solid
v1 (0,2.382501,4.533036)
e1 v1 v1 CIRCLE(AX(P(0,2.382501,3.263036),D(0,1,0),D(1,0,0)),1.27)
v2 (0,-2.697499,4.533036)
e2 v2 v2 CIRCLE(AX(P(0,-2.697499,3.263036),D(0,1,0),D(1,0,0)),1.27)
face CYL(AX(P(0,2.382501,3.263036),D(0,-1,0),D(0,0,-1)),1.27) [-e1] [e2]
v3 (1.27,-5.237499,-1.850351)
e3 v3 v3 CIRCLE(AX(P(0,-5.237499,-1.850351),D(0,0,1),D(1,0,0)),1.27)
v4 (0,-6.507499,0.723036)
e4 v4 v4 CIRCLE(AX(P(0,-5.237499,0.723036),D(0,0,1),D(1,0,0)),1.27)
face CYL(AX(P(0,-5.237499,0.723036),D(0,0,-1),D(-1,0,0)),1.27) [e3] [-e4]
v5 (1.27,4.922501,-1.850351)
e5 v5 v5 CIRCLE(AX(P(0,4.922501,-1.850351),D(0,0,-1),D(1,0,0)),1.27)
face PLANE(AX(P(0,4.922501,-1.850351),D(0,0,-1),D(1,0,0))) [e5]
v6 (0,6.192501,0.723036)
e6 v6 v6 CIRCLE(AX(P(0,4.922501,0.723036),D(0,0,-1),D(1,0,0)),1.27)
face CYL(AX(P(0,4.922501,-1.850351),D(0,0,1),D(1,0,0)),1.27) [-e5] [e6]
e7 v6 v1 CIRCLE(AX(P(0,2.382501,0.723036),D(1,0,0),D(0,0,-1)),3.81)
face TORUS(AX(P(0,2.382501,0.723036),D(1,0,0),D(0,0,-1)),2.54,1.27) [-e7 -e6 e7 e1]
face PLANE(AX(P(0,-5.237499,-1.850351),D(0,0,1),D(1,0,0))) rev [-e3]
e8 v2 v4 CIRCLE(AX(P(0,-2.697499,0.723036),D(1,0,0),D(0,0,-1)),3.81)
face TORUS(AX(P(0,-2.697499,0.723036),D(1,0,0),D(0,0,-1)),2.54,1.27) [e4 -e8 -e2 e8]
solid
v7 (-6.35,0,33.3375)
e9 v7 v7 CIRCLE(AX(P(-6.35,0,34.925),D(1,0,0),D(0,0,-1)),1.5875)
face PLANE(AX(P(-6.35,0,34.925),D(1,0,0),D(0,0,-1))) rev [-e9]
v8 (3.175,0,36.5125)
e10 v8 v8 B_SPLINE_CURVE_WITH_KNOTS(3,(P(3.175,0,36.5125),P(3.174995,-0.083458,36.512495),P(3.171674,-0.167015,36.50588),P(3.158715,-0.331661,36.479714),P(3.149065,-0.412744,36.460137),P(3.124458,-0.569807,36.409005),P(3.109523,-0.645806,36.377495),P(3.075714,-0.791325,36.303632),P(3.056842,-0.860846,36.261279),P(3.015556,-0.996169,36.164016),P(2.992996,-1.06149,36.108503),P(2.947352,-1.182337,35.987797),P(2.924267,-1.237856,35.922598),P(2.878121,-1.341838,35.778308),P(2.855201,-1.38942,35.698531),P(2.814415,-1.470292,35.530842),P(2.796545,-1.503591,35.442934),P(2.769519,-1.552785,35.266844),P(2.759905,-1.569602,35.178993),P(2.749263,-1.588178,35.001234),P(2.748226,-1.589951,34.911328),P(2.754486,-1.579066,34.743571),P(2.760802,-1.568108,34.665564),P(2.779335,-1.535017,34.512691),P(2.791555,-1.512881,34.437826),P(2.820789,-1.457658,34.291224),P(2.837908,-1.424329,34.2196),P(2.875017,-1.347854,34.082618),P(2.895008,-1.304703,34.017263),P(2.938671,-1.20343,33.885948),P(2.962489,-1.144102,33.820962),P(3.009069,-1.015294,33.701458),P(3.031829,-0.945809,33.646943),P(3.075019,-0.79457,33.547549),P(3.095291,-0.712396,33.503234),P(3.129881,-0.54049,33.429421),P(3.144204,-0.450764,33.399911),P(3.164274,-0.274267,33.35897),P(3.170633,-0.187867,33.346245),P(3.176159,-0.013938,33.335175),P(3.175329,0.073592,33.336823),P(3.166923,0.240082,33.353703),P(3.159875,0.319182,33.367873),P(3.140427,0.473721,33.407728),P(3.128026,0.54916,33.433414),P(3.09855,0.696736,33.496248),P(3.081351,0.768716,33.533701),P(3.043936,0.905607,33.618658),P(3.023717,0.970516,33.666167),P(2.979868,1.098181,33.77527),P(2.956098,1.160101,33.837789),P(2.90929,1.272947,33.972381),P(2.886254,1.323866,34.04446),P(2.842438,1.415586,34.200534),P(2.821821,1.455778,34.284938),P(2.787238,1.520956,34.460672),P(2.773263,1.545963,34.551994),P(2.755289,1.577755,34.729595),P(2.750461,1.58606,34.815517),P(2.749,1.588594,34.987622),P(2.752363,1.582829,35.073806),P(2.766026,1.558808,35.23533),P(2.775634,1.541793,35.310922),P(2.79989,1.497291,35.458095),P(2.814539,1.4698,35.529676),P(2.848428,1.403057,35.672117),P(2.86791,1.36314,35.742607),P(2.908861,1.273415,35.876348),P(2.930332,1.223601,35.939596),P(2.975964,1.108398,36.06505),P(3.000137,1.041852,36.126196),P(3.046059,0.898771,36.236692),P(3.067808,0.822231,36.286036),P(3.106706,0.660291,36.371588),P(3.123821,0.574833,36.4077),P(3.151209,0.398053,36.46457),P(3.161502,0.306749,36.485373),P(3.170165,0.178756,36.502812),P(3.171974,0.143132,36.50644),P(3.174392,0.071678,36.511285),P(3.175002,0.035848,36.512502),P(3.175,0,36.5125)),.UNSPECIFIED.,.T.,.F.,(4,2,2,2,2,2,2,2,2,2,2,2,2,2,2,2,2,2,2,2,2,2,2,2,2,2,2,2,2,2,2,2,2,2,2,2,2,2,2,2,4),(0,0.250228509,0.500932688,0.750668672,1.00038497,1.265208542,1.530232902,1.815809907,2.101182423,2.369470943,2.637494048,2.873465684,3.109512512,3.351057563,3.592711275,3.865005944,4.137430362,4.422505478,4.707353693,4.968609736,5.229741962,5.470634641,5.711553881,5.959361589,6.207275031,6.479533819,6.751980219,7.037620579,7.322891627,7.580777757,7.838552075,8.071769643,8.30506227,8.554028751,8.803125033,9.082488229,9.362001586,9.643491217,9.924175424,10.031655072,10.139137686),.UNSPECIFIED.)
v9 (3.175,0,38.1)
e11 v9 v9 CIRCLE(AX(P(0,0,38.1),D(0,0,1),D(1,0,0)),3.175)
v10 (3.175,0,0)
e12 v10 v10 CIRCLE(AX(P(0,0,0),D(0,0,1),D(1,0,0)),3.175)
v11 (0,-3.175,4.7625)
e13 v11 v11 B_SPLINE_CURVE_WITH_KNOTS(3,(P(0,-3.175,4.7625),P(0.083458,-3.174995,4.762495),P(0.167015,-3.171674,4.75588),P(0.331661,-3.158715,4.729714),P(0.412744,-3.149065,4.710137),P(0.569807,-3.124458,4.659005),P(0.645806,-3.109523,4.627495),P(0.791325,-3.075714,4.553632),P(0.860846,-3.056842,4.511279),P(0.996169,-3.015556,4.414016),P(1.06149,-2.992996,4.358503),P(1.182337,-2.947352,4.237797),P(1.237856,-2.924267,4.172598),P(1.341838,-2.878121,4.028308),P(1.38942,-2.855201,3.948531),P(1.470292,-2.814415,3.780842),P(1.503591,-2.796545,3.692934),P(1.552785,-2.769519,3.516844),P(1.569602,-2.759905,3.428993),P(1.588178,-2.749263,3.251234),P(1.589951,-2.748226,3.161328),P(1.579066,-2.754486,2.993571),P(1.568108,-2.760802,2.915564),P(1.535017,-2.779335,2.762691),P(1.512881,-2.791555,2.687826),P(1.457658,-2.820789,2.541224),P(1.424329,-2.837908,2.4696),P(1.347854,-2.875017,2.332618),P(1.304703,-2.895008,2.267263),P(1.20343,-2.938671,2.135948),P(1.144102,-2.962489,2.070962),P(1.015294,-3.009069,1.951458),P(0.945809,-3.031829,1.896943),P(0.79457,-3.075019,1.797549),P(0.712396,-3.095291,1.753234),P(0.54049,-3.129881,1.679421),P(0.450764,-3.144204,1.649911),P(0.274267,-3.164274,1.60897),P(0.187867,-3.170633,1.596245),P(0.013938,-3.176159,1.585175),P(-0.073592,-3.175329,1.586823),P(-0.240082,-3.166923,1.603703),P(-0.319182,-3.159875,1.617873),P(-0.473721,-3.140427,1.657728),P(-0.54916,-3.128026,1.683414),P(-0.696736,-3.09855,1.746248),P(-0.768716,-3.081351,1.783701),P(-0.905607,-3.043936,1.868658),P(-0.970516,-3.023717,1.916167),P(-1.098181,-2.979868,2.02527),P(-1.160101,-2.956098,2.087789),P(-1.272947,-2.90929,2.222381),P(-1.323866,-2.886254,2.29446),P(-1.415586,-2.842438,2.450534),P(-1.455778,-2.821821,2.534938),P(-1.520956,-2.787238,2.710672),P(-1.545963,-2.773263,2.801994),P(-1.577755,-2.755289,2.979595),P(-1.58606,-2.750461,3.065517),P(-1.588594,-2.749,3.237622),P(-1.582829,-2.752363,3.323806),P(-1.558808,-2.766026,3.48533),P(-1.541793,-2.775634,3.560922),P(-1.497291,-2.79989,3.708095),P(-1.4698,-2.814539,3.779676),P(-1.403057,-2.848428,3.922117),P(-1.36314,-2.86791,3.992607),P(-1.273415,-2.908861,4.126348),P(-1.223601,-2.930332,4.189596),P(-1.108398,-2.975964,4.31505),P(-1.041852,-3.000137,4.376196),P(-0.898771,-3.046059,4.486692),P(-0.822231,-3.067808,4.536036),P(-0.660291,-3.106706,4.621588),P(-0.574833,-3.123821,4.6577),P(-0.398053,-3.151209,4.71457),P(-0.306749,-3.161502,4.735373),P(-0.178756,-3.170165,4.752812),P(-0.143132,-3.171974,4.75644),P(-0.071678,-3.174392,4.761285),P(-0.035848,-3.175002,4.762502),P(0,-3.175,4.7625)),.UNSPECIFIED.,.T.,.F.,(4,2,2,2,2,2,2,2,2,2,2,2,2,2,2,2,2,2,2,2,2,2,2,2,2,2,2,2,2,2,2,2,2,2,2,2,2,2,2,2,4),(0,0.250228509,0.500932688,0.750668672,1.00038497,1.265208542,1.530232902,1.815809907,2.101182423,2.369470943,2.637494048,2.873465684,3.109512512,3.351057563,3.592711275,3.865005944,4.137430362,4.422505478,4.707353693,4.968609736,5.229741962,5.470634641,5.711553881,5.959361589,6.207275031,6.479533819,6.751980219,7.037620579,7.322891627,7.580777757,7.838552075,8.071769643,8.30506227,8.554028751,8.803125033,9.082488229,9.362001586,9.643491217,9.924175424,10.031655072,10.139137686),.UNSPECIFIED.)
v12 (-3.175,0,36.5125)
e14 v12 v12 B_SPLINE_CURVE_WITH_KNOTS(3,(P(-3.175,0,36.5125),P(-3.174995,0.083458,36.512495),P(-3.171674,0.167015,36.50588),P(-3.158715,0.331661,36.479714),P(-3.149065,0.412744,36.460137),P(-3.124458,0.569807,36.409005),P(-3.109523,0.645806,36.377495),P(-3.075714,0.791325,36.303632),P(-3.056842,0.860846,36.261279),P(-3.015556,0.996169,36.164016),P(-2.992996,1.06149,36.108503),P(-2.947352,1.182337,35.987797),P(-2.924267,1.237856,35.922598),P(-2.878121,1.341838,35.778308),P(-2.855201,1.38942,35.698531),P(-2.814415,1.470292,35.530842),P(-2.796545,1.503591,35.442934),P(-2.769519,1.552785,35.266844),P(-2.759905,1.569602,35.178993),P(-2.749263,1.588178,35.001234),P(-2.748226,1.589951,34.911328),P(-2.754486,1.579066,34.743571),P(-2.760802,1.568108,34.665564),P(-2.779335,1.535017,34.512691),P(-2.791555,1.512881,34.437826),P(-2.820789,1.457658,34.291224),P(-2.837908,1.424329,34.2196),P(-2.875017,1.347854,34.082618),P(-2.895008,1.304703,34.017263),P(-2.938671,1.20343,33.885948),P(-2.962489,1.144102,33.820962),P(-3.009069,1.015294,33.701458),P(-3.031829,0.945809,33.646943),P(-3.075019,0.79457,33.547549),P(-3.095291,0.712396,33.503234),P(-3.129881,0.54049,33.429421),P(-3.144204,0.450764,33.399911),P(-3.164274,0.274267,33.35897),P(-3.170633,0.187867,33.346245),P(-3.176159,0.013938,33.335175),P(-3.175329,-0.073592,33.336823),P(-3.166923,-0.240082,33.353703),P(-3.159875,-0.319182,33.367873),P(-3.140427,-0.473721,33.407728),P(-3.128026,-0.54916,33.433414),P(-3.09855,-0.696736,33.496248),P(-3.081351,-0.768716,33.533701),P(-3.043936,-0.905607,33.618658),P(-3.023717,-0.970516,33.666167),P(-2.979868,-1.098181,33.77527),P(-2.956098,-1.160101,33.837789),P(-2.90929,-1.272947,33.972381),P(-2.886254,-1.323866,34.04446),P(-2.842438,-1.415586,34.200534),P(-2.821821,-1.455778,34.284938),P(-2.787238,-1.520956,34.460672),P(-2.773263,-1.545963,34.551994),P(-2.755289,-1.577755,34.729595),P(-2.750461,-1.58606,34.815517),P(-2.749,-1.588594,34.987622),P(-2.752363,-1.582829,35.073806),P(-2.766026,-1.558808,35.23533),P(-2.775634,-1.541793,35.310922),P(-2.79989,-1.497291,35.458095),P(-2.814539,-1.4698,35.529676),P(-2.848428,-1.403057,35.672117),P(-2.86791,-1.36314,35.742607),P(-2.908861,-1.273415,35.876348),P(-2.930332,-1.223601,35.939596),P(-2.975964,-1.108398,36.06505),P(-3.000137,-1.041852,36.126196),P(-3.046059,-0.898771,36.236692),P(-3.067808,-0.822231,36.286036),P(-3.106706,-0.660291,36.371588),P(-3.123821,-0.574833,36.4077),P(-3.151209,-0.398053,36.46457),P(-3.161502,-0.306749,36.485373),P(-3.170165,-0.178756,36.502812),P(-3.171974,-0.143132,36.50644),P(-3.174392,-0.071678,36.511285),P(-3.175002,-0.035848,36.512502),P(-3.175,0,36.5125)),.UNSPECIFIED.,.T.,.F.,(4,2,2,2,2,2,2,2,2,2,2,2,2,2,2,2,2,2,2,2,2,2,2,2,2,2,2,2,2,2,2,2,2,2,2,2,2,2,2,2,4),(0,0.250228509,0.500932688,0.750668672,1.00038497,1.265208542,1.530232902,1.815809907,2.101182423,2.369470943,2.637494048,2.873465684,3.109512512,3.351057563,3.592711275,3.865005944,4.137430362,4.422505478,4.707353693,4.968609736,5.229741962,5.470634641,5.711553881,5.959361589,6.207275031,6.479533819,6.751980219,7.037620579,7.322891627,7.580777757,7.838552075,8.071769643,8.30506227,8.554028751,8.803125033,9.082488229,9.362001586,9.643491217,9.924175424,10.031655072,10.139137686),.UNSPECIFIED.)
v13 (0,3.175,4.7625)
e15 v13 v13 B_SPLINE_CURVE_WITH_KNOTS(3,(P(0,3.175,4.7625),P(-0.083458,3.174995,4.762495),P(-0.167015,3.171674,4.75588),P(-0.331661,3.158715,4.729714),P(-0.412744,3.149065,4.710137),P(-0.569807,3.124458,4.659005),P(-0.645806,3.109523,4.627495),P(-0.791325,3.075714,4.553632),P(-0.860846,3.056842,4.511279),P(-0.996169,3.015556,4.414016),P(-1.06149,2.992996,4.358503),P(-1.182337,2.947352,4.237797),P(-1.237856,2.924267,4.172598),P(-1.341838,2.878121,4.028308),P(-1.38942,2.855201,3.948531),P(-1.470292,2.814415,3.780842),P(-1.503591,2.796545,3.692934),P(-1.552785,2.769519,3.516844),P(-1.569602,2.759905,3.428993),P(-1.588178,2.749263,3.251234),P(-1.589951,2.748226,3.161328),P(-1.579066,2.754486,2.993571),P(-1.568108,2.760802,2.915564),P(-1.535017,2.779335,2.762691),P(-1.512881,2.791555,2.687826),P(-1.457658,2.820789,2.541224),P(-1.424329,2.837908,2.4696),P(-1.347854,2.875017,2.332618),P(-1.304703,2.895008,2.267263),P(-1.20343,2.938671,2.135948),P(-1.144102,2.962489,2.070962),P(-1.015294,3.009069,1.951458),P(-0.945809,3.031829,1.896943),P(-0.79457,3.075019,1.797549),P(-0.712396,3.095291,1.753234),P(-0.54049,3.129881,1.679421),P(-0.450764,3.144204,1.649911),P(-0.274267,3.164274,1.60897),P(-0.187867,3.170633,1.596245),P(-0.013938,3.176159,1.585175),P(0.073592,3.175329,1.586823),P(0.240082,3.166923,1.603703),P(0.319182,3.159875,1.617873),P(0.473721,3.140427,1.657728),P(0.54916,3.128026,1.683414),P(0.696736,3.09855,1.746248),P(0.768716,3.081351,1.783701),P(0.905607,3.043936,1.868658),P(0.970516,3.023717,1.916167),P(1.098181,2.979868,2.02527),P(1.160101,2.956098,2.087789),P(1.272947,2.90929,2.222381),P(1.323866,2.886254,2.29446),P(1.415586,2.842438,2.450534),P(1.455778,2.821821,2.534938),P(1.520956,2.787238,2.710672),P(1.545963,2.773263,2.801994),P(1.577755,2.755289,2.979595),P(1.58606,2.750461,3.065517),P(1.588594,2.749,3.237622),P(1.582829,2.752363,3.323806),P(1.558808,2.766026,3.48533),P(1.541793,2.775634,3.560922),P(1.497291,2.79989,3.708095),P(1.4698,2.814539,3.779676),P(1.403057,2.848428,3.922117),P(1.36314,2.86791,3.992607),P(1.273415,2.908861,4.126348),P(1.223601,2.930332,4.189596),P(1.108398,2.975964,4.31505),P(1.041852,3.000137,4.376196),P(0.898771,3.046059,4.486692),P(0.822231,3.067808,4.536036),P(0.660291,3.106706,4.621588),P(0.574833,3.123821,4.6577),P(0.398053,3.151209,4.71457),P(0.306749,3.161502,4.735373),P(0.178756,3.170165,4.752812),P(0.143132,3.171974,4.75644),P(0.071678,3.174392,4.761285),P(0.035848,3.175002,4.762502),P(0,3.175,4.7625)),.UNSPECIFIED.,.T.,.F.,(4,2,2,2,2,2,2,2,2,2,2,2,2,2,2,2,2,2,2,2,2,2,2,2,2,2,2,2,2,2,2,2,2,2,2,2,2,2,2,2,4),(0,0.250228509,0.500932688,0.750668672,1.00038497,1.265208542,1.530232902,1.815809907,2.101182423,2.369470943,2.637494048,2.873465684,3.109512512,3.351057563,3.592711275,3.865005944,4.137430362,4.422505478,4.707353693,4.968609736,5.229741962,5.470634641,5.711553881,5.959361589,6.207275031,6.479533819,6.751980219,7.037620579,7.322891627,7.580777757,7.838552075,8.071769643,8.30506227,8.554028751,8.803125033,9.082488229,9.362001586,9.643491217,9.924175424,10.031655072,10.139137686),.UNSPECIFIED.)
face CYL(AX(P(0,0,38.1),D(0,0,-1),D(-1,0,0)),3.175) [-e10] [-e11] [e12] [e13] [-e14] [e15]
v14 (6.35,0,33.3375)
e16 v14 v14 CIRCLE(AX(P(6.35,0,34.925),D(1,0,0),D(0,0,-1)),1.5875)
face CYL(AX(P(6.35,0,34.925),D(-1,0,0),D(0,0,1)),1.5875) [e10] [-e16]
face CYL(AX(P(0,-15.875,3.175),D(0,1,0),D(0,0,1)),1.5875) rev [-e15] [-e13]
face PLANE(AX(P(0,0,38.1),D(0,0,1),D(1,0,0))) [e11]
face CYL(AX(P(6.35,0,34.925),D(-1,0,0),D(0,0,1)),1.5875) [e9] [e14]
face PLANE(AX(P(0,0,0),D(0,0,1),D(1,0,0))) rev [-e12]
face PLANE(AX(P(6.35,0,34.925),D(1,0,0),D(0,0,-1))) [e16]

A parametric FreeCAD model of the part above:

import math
import FreeCAD as App
import Part
import Sketcher

V = App.Vector
Q = App.Units.Quantity

doc = App.newDocument("Part")
body = doc.addObject("PartDesign::Body", "Body")

# Sketch on XY plane
sketch1 = body.newObject("Sketcher::SketchObject", "Sketch")
sketch1.AttachmentSupport = (doc.getObject("XY_Plane"), [""])
sketch1.MapMode = "FlatFace"
sketch1.addGeometry(Part.Circle(V(0, 0, 0), V(0, 0, 1), 3.2), False)
sketch1.addConstraint([
    Sketcher.Constraint("Coincident", 0, 3, -1, 1),
    Sketcher.Constraint("Diameter", 0, Q("0.25 in")),
])
pad1 = body.newObject("PartDesign::Pad", "Pad")
pad1.Profile = sketch1
pad1.Length = Q("1.5 in")

# Sketch on XZ plane
sketch2 = body.newObject("Sketcher::SketchObject", "Sketch001")
sketch2.AttachmentSupport = (doc.getObject("XZ_Plane"), [""])
sketch2.MapMode = "FlatFace"
sketch2.addGeometry(Part.Circle(V(0, 3.2, 0), V(0, 0, 1), 1.6), False)
sketch2.addConstraint([
    Sketcher.Constraint("PointOnObject", 0, 3, -2),
    Sketcher.Constraint("Diameter", 0, Q("0.125 in")),
    Sketcher.Constraint("DistanceY", -1, 1, 0, 3, Q("0.125 in")),
])
pocket1 = body.newObject("PartDesign::Pocket", "Pocket")
pocket1.Profile = sketch2
pocket1.Length = Q("1.25 in")
pocket1.Midplane = True

# Sketch on YZ plane
sketch3 = body.newObject("Sketcher::SketchObject", "Sketch002")
sketch3.AttachmentSupport = (doc.getObject("YZ_Plane"), [""])
sketch3.MapMode = "FlatFace"
sketch3.addGeometry(Part.Circle(V(0, 34.9, 0), V(0, 0, 1), 1.6), False)
sketch3.addConstraint([
    Sketcher.Constraint("PointOnObject", 0, 3, -2),
    Sketcher.Constraint("Diameter", 0, Q("0.125 in")),
    Sketcher.Constraint("DistanceY", -1, 1, 0, 3, Q("1.375 in")),
])
pad2 = body.newObject("PartDesign::Pad", "Pad001")
pad2.Profile = sketch3
pad2.Length = Q("0.5 in")
pad2.Midplane = True
body2 = doc.addObject("PartDesign::Body", "Body001")

# Sketch on XY plane
sketch4 = body2.newObject("Sketcher::SketchObject", "Sketch003")
sketch4.AttachmentSupport = (doc.getObject("XY_Plane001"), [""])
sketch4.MapMode = "FlatFace"
sketch4.AttachmentOffset = App.Placement(V(0, 0, -1.850351), App.Rotation())
sketch4.addGeometry(Part.Circle(V(0, 4.9, 0), V(0, 0, 1), 1.3), False)
sketch4.addConstraint([
    Sketcher.Constraint("PointOnObject", 0, 3, -2),
    Sketcher.Constraint("Diameter", 0, Q("0.1 in")),
    Sketcher.Constraint("DistanceY", -1, 1, 0, 3, Q("4.922501 mm")),
])

# Sketch on YZ plane
sketch5 = body2.newObject("Sketcher::SketchObject", "Sketch004")
sketch5.AttachmentSupport = (doc.getObject("YZ_Plane001"), [""])
sketch5.MapMode = "FlatFace"
sketch5.addGeometry([
    Part.LineSegment(V(4.9, -1.9, 0), V(4.9, 0.7, 0)),  # 0
    Part.ArcOfCircle(Part.Circle(V(2.4, 0.7, 0), V(0, 0, 1), 2.5), math.radians(0), math.radians(90)),  # 1
    Part.LineSegment(V(2.4, 3.3, 0), V(-2.7, 3.3, 0)),  # 2
    Part.ArcOfCircle(Part.Circle(V(-2.7, 0.7, 0), V(0, 0, 1), 2.5), math.radians(90), math.radians(180)),  # 3
    Part.LineSegment(V(-5.2, 0.7, 0), V(-5.2, -1.9, 0)),  # 4
], False)
sketch5.addConstraint([
    Sketcher.Constraint("Tangent", 0, 2, 1, 1),
    Sketcher.Constraint("Tangent", 1, 2, 2, 1),
    Sketcher.Constraint("Tangent", 2, 2, 3, 1),
    Sketcher.Constraint("Tangent", 3, 2, 4, 1),
    Sketcher.Constraint("Vertical", 0),
    Sketcher.Constraint("Horizontal", 2),
    Sketcher.Constraint("Vertical", 4),
    Sketcher.Constraint("Equal", 1, 3),
    Sketcher.Constraint("Horizontal", 0, 1, 4, 2),
    Sketcher.Constraint("Radius", 1, Q("0.1 in")),
    Sketcher.Constraint("DistanceX", 2, 2, 2, 1, Q("0.2 in")),
    Sketcher.Constraint("DistanceX", -1, 1, 1, 3, Q("2.382501 mm")),
    Sketcher.Constraint("DistanceY", 0, 1, 0, 2, Q("2.573388 mm")),
    Sketcher.Constraint("DistanceY", 0, 1, -1, 1, Q("1.850351 mm")),
])
doc.recompute()

additivepipe = body2.newObject("PartDesign::AdditivePipe", "AdditivePipe")
additivepipe.Profile = sketch4
additivepipe.Spine = (sketch5, ["Edge1", "Edge2", "Edge3", "Edge4", "Edge5"])

doc.recompute()
